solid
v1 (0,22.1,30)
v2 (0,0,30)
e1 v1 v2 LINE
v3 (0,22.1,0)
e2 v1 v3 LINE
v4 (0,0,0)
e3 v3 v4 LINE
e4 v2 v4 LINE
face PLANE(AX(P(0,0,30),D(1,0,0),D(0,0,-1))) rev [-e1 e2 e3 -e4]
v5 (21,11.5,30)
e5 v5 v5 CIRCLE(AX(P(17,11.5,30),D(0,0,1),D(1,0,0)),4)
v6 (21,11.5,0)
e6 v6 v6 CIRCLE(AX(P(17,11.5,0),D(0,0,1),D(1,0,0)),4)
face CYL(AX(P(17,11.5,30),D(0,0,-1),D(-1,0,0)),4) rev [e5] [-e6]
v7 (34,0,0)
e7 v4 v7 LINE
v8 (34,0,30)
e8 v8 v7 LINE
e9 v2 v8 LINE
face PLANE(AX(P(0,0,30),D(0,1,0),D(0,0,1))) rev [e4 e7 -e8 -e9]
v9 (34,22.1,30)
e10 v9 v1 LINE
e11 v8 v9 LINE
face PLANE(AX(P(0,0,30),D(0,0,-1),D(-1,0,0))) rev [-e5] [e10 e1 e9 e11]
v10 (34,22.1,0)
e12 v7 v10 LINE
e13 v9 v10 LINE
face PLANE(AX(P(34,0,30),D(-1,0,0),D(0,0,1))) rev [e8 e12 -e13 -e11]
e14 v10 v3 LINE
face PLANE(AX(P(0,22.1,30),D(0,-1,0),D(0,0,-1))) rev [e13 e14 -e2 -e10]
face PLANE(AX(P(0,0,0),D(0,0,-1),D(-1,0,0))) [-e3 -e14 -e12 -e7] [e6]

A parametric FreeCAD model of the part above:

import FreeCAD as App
import Part
import Sketcher

doc = App.newDocument("Part")
body = doc.addObject("PartDesign::Body", "Body")

sketch1 = body.newObject("Sketcher::SketchObject", "Sketch")
sketch1.AttachmentSupport = (doc.getObject("XY_Plane"), [""])
sketch1.MapMode = "FlatFace"
sketch1.addGeometry([
    Part.LineSegment(App.Vector(0, 22.1, 0), App.Vector(0, 0, 0)),
    Part.LineSegment(App.Vector(0, 0, 0), App.Vector(34, 0, 0)),
    Part.LineSegment(App.Vector(34, 0, 0), App.Vector(34, 22.1, 0)),
    Part.LineSegment(App.Vector(34, 22.1, 0), App.Vector(0, 22.1, 0)),
    Part.Circle(App.Vector(17, 11.5, 0), App.Vector(0, 0, 1), 4),
], False)
sketch1.addConstraint([
    Sketcher.Constraint("Coincident", 0, 2, 1, 1),
    Sketcher.Constraint("Coincident", 1, 2, 2, 1),
    Sketcher.Constraint("Coincident", 2, 2, 3, 1),
    Sketcher.Constraint("Coincident", 3, 2, 0, 1),
    Sketcher.Constraint("Vertical", 0),
    Sketcher.Constraint("Horizontal", 1),
    Sketcher.Constraint("Vertical", 2),
    Sketcher.Constraint("Horizontal", 3),
    Sketcher.Constraint("Coincident", 0, 2, -1, 1),
    Sketcher.Constraint("Diameter", 4, 8.0),
    Sketcher.Constraint("DistanceX", 1, 1, 1, 2, 34.0),
    Sketcher.Constraint("DistanceY", 0, 2, 0, 1, 22.1),
    Sketcher.Constraint("DistanceX", -1, 1, 4, 3, 17.0),
    Sketcher.Constraint("DistanceY", -1, 1, 4, 3, 11.5),
])
pad1 = body.newObject("PartDesign::Pad", "Pad")
pad1.Profile = sketch1
pad1.Length = 30

doc.recompute()
